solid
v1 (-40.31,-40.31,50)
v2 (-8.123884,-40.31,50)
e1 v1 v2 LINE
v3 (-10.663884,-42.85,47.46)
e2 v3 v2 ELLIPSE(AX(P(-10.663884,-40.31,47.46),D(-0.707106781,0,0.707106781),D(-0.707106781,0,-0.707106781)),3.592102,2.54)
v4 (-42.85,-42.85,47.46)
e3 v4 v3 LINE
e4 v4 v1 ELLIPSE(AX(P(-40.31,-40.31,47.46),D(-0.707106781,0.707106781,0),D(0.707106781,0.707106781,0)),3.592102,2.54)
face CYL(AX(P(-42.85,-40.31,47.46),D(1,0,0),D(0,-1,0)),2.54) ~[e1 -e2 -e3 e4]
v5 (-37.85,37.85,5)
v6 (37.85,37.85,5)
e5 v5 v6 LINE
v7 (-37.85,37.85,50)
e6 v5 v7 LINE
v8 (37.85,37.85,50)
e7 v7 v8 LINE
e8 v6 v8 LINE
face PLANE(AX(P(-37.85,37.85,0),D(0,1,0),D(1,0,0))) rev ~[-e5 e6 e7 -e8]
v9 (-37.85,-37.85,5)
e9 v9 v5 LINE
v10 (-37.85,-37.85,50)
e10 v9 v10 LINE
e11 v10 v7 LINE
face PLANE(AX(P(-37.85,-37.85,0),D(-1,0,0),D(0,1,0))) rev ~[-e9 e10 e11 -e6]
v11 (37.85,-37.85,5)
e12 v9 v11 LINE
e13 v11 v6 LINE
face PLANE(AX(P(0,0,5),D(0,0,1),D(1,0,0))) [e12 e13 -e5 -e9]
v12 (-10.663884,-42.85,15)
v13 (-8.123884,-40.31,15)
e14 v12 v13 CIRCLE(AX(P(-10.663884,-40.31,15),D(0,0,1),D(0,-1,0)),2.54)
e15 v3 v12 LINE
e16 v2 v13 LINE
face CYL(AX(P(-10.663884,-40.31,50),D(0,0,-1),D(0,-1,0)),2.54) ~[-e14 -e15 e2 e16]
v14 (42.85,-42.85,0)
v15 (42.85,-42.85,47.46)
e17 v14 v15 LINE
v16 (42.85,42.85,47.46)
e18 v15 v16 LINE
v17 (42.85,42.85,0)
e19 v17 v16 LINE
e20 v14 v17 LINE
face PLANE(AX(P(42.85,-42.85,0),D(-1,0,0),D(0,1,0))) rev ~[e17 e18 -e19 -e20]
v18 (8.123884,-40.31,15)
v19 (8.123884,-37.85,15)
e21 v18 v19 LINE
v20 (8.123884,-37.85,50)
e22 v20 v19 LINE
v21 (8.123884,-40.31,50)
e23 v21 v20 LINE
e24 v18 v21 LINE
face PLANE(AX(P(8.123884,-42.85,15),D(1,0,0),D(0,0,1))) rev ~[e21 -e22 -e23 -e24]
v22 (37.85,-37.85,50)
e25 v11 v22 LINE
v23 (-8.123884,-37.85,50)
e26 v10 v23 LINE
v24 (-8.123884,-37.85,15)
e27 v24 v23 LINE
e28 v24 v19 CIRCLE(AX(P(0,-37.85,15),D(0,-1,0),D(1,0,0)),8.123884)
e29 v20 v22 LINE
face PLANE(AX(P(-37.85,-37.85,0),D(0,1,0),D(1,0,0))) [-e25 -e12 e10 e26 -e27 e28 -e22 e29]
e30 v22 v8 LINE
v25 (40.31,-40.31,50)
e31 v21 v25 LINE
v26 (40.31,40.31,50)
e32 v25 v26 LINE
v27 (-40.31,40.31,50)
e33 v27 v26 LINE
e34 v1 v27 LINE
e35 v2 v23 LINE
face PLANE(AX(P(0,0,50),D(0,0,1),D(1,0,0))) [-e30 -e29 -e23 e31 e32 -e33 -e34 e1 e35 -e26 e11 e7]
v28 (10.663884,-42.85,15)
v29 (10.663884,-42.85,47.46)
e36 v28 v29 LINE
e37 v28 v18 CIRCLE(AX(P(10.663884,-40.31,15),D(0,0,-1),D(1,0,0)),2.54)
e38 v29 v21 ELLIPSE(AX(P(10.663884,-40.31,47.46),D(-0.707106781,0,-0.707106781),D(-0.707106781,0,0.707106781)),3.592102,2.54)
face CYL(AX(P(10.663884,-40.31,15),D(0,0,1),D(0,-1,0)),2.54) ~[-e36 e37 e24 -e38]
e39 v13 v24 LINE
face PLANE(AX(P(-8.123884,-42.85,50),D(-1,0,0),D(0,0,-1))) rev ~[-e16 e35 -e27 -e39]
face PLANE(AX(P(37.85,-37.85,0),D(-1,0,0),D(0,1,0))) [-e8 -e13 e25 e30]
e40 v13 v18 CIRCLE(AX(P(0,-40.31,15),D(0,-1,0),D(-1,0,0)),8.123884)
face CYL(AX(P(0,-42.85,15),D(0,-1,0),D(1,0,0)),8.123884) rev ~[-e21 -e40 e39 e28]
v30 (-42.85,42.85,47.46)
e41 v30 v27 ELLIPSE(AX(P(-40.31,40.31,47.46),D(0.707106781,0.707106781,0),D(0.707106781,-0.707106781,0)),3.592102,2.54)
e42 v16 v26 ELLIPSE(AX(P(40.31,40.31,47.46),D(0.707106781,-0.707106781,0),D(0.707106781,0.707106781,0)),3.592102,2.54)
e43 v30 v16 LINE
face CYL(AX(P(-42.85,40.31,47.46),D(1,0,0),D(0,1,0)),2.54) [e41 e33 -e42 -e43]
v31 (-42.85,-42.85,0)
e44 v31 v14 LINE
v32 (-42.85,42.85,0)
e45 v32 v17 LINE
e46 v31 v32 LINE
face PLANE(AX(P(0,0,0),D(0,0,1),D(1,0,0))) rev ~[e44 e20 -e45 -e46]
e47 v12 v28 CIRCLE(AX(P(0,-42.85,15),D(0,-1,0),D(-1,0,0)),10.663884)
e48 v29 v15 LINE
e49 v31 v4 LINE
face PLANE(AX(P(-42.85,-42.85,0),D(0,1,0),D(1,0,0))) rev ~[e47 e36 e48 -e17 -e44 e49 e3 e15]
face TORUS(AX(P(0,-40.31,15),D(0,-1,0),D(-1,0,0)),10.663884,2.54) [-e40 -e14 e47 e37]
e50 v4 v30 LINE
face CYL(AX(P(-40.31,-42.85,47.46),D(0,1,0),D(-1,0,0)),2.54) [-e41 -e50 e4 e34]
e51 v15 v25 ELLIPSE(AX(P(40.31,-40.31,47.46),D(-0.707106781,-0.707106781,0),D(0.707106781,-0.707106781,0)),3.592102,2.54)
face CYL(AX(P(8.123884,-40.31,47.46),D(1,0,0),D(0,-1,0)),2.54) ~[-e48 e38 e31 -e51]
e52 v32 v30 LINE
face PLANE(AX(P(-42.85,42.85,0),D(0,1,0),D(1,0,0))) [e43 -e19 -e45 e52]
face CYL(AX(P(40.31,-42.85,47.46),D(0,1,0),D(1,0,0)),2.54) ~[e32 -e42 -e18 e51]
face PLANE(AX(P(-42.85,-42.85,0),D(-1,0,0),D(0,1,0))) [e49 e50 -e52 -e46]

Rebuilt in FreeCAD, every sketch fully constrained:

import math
import FreeCAD as App
import Part
import Sketcher

V = App.Vector
Q = App.Units.Quantity


def edges_at(feature, points):
    """Names of the edges that pass closest to the given points."""
    edges = feature.Shape.Edges
    near = lambda p: min(range(len(edges)), key=lambda i: edges[i].distToShape(Part.Vertex(*p))[0])
    return sorted({f"Edge{near(p) + 1}" for p in points})

doc = App.newDocument("Part")
body = doc.addObject("PartDesign::Body", "Body")

# Sketch on XY plane
sketch1 = body.newObject("Sketcher::SketchObject", "Sketch")
sketch1.AttachmentSupport = (doc.getObject("XY_Plane"), [""])
sketch1.MapMode = "FlatFace"
sketch1.addGeometry([
    Part.LineSegment(V(-43, 43, 0), V(-43, -43, 0)),  # 0
    Part.LineSegment(V(-43, -43, 0), V(43, -43, 0)),  # 1
    Part.LineSegment(V(43, -43, 0), V(43, 43, 0)),  # 2
    Part.LineSegment(V(43, 43, 0), V(-43, 43, 0)),  # 3
    Part.LineSegment(V(38, -38, 0), V(-38, -38, 0)),  # 4
    Part.LineSegment(V(-38, -38, 0), V(-38, 38, 0)),  # 5
    Part.LineSegment(V(-38, 38, 0), V(38, 38, 0)),  # 6
    Part.LineSegment(V(38, 38, 0), V(38, -38, 0)),  # 7
], False)
sketch1.addConstraint([
    Sketcher.Constraint("Coincident", 0, 2, 1, 1),
    Sketcher.Constraint("Coincident", 1, 2, 2, 1),
    Sketcher.Constraint("Coincident", 2, 2, 3, 1),
    Sketcher.Constraint("Coincident", 3, 2, 0, 1),
    Sketcher.Constraint("Coincident", 4, 2, 5, 1),
    Sketcher.Constraint("Coincident", 5, 2, 6, 1),
    Sketcher.Constraint("Coincident", 6, 2, 7, 1),
    Sketcher.Constraint("Coincident", 7, 2, 4, 1),
    Sketcher.Constraint("Vertical", 0),
    Sketcher.Constraint("Horizontal", 1),
    Sketcher.Constraint("Vertical", 2),
    Sketcher.Constraint("Horizontal", 3),
    Sketcher.Constraint("Horizontal", 4),
    Sketcher.Constraint("Vertical", 5),
    Sketcher.Constraint("Horizontal", 6),
    Sketcher.Constraint("Vertical", 7),
    Sketcher.Constraint("Symmetric", 0, 2, 2, 2, -1, 1),
    Sketcher.Constraint("Symmetric", 4, 2, 6, 2, -1, 1),
    Sketcher.Constraint("Equal", 3, 0),
    Sketcher.Constraint("Equal", 6, 5),
    Sketcher.Constraint("DistanceX", 1, 1, 1, 2, Q("85.7 mm")),
    Sketcher.Constraint("DistanceX", 4, 2, 4, 1, Q("75.7 mm")),
])
pad1 = body.newObject("PartDesign::Pad", "Pad")
pad1.Profile = sketch1
pad1.Length = 50

# Sketch on XY plane
sketch2 = body.newObject("Sketcher::SketchObject", "Sketch001")
sketch2.AttachmentSupport = (doc.getObject("XY_Plane"), [""])
sketch2.MapMode = "FlatFace"
sketch2.addGeometry([
    Part.LineSegment(V(-38, 38, 0), V(-38, -38, 0)),
    Part.LineSegment(V(-38, -38, 0), V(38, -38, 0)),
    Part.LineSegment(V(38, -38, 0), V(38, 38, 0)),
    Part.LineSegment(V(38, 38, 0), V(-38, 38, 0)),
], False)
sketch2.addConstraint([
    Sketcher.Constraint("Coincident", 0, 2, 1, 1),
    Sketcher.Constraint("Coincident", 1, 2, 2, 1),
    Sketcher.Constraint("Coincident", 2, 2, 3, 1),
    Sketcher.Constraint("Coincident", 3, 2, 0, 1),
    Sketcher.Constraint("Vertical", 0),
    Sketcher.Constraint("Horizontal", 1),
    Sketcher.Constraint("Vertical", 2),
    Sketcher.Constraint("Horizontal", 3),
    Sketcher.Constraint("Symmetric", 0, 2, 2, 2, -1, 1),
    Sketcher.Constraint("Equal", 3, 0),
    Sketcher.Constraint("DistanceX", 1, 1, 1, 2, Q("75.7 mm")),
])
pad2 = body.newObject("PartDesign::Pad", "Pad001")
pad2.Profile = sketch2
pad2.Length = 5

# Sketch on XZ plane
sketch3 = body.newObject("Sketcher::SketchObject", "Sketch002")
sketch3.AttachmentSupport = (doc.getObject("XZ_Plane"), [""])
sketch3.MapMode = "FlatFace"
sketch3.AttachmentOffset = App.Placement(V(0, 0, 42.85), App.Rotation())
sketch3.addGeometry([
    Part.ArcOfCircle(Part.Circle(V(0, 15, 0), V(0, 0, 1), 8), math.radians(180), math.radians(360)),
    Part.LineSegment(V(8, 15, 0), V(8, 50, 0)),
    Part.LineSegment(V(8, 50, 0), V(-8, 50, 0)),
    Part.LineSegment(V(-8, 50, 0), V(-8, 15, 0)),
], False)
sketch3.addConstraint([
    Sketcher.Constraint("Tangent", 0, 2, 1, 1),
    Sketcher.Constraint("Coincident", 1, 2, 2, 1),
    Sketcher.Constraint("Coincident", 2, 2, 3, 1),
    Sketcher.Constraint("Tangent", 3, 2, 0, 1),
    Sketcher.Constraint("Vertical", 1),
    Sketcher.Constraint("Horizontal", 2),
    Sketcher.Constraint("Vertical", 3),
    Sketcher.Constraint("PointOnObject", 0, 3, -2),
    Sketcher.Constraint("DistanceY", 1, 1, 1, 2, Q("35 mm")),
    Sketcher.Constraint("DistanceY", -1, 1, 0, 3, Q("15 mm")),
    Sketcher.Constraint("Radius", 0, Q("8.123884 mm")),
])
pocket1 = body.newObject("PartDesign::Pocket", "Pocket")
pocket1.Profile = sketch3
pocket1.Length = 20
doc.recompute()

fillet = body.newObject("PartDesign::Fillet", "Fillet")
fillet.Base = (pocket1, edges_at(pocket1, [
    (0, -42.85, 6.876),
    (8.124, -42.85, 32.5),
    (25.487, -42.85, 50),
    (-25.487, -42.85, 50),
    (42.85, 0, 50),
    (0, 42.85, 50),
    (-42.85, 0, 50),
    (-8.124, -42.85, 32.5),
]))
fillet.Radius = 2.54

doc.recompute()
